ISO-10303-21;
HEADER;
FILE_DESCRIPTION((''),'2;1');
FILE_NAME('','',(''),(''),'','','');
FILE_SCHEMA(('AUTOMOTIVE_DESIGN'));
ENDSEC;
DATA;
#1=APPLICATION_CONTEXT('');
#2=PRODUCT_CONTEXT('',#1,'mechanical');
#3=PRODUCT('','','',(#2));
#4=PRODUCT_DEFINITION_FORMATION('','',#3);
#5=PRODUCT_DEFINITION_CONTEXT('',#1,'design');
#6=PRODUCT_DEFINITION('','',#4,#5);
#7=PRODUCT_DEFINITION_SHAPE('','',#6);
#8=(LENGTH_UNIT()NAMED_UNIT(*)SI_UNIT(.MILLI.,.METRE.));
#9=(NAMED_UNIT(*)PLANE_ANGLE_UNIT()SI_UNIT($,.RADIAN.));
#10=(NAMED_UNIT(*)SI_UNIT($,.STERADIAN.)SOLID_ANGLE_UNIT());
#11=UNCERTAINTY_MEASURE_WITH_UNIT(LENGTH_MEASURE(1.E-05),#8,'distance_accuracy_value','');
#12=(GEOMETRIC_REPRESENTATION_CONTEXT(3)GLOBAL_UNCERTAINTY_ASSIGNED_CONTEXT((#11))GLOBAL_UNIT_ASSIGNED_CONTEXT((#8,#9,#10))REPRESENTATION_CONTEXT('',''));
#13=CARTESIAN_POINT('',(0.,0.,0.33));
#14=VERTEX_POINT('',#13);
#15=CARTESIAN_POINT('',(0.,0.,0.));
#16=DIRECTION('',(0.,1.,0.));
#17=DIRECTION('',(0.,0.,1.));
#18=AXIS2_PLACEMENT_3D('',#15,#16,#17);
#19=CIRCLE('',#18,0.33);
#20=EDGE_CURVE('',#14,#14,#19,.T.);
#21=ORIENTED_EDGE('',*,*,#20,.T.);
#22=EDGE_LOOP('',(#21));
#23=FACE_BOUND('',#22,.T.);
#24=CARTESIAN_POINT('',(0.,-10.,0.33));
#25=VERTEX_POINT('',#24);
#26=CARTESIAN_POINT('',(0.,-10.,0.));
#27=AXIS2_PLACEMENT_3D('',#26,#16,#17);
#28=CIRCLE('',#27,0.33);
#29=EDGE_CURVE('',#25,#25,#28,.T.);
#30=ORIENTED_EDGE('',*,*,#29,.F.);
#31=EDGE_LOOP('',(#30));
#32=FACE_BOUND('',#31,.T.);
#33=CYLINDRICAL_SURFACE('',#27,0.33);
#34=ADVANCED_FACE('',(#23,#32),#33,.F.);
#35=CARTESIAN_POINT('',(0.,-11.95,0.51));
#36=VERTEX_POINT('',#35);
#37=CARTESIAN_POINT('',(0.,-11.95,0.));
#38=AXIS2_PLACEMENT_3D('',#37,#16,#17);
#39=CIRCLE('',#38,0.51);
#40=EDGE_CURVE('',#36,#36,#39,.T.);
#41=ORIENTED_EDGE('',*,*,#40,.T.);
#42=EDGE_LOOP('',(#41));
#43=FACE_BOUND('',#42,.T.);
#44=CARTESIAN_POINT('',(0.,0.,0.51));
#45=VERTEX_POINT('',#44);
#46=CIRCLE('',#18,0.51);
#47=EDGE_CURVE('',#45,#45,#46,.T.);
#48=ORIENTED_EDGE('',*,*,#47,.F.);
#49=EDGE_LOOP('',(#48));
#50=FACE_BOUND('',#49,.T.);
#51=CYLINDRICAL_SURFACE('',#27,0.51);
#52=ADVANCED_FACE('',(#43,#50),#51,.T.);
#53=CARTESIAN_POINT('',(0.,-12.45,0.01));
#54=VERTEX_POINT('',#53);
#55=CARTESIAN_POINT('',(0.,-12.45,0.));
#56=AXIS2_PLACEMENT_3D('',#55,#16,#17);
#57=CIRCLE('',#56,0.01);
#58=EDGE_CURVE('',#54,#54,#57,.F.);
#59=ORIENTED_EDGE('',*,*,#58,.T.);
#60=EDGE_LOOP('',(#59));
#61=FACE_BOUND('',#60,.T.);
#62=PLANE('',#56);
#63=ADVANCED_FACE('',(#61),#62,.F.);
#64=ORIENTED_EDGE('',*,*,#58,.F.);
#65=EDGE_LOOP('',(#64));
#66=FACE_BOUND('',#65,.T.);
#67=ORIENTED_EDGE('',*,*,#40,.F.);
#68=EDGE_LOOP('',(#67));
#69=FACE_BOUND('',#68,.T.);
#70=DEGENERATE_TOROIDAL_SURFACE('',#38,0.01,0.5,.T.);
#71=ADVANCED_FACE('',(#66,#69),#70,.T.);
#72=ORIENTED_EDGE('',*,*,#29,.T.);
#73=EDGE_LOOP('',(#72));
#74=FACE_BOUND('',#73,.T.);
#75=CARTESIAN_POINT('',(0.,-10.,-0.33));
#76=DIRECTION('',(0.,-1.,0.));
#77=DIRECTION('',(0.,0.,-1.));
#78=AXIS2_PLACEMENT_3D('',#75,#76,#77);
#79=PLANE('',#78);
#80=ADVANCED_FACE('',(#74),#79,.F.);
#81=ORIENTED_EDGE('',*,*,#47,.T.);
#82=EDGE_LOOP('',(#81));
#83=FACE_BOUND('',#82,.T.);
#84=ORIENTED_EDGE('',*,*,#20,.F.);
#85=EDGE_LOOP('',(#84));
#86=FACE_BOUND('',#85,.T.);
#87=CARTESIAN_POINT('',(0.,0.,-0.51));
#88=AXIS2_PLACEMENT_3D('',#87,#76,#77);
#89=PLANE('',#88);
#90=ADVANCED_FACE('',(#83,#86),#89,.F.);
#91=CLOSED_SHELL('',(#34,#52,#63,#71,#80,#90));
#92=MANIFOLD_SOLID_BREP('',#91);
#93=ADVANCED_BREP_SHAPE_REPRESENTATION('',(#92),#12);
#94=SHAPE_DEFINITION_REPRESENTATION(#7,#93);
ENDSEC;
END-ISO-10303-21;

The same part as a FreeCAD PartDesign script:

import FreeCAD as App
import Part
import Sketcher

V = App.Vector


def edges_at(feature, points):
    """Names of the edges that pass closest to the given points."""
    edges = feature.Shape.Edges
    near = lambda p: min(range(len(edges)), key=lambda i: edges[i].distToShape(Part.Vertex(*p))[0])
    return sorted({f"Edge{near(p) + 1}" for p in points})

doc = App.newDocument("Part")
body = doc.addObject("PartDesign::Body", "Body")

sketch1 = doc.addObject("Sketcher::SketchObject", "Sketch")
body.addObject(sketch1)
sketch1.AttachmentSupport = (doc.YZ_Plane, [""])
sketch1.MapMode = "FlatFace"
sketch1.addGeometry(Part.LineSegment(V(0, -0.33, 0), V(-10, -0.33, 0)), False)
sketch1.addGeometry(Part.LineSegment(V(-10, -0.33, 0), V(-10, 0, 0)), False)
sketch1.addGeometry(Part.LineSegment(V(-10, 0, 0), V(-12.45, 0, 0)), False)
sketch1.addGeometry(Part.LineSegment(V(-12.45, 0, 0), V(-12.45, -0.51, 0)), False)
sketch1.addGeometry(Part.LineSegment(V(-12.45, -0.51, 0), V(0, -0.51, 0)), False)
sketch1.addGeometry(Part.LineSegment(V(0, -0.51, 0), V(0, -0.33, 0)), False)
sketch1.addConstraint(Sketcher.Constraint("Coincident", 0, 2, 1, 1))
sketch1.addConstraint(Sketcher.Constraint("Coincident", 1, 2, 2, 1))
sketch1.addConstraint(Sketcher.Constraint("Coincident", 2, 2, 3, 1))
sketch1.addConstraint(Sketcher.Constraint("Coincident", 3, 2, 4, 1))
sketch1.addConstraint(Sketcher.Constraint("Coincident", 4, 2, 5, 1))
sketch1.addConstraint(Sketcher.Constraint("Coincident", 5, 2, 0, 1))
sketch1.addConstraint(Sketcher.Constraint("Horizontal", 0))
sketch1.addConstraint(Sketcher.Constraint("Vertical", 1))
sketch1.addConstraint(Sketcher.Constraint("Horizontal", 2))
sketch1.addConstraint(Sketcher.Constraint("Vertical", 3))
sketch1.addConstraint(Sketcher.Constraint("Horizontal", 4))
sketch1.addConstraint(Sketcher.Constraint("Vertical", 5))
sketch1.addConstraint(Sketcher.Constraint("PointOnObject", 1, 2, -1))
sketch1.addConstraint(Sketcher.Constraint("PointOnObject", 4, 2, -2))
sketch1.addConstraint(Sketcher.Constraint("DistanceX", 0, 2, 0, 1, 10.0))
sketch1.addConstraint(Sketcher.Constraint("DistanceX", 2, 2, 2, 1, 2.45))
sketch1.addConstraint(Sketcher.Constraint("DistanceY", 1, 1, 1, 2, 0.33))
sketch1.addConstraint(Sketcher.Constraint("DistanceY", 3, 2, 3, 1, 0.51))
revolution = doc.addObject("PartDesign::Revolution", "Revolution")
body.addObject(revolution)
revolution.Profile = sketch1
revolution.ReferenceAxis = (sketch1, ["H_Axis"])
revolution.Angle = 360
doc.recompute()

fillet = doc.addObject("PartDesign::Fillet", "Fillet")
body.addObject(fillet)
fillet.Base = (revolution, edges_at(revolution, [(0, -12.45, -0.51)]))
fillet.Radius = 0.5

doc.recompute()
